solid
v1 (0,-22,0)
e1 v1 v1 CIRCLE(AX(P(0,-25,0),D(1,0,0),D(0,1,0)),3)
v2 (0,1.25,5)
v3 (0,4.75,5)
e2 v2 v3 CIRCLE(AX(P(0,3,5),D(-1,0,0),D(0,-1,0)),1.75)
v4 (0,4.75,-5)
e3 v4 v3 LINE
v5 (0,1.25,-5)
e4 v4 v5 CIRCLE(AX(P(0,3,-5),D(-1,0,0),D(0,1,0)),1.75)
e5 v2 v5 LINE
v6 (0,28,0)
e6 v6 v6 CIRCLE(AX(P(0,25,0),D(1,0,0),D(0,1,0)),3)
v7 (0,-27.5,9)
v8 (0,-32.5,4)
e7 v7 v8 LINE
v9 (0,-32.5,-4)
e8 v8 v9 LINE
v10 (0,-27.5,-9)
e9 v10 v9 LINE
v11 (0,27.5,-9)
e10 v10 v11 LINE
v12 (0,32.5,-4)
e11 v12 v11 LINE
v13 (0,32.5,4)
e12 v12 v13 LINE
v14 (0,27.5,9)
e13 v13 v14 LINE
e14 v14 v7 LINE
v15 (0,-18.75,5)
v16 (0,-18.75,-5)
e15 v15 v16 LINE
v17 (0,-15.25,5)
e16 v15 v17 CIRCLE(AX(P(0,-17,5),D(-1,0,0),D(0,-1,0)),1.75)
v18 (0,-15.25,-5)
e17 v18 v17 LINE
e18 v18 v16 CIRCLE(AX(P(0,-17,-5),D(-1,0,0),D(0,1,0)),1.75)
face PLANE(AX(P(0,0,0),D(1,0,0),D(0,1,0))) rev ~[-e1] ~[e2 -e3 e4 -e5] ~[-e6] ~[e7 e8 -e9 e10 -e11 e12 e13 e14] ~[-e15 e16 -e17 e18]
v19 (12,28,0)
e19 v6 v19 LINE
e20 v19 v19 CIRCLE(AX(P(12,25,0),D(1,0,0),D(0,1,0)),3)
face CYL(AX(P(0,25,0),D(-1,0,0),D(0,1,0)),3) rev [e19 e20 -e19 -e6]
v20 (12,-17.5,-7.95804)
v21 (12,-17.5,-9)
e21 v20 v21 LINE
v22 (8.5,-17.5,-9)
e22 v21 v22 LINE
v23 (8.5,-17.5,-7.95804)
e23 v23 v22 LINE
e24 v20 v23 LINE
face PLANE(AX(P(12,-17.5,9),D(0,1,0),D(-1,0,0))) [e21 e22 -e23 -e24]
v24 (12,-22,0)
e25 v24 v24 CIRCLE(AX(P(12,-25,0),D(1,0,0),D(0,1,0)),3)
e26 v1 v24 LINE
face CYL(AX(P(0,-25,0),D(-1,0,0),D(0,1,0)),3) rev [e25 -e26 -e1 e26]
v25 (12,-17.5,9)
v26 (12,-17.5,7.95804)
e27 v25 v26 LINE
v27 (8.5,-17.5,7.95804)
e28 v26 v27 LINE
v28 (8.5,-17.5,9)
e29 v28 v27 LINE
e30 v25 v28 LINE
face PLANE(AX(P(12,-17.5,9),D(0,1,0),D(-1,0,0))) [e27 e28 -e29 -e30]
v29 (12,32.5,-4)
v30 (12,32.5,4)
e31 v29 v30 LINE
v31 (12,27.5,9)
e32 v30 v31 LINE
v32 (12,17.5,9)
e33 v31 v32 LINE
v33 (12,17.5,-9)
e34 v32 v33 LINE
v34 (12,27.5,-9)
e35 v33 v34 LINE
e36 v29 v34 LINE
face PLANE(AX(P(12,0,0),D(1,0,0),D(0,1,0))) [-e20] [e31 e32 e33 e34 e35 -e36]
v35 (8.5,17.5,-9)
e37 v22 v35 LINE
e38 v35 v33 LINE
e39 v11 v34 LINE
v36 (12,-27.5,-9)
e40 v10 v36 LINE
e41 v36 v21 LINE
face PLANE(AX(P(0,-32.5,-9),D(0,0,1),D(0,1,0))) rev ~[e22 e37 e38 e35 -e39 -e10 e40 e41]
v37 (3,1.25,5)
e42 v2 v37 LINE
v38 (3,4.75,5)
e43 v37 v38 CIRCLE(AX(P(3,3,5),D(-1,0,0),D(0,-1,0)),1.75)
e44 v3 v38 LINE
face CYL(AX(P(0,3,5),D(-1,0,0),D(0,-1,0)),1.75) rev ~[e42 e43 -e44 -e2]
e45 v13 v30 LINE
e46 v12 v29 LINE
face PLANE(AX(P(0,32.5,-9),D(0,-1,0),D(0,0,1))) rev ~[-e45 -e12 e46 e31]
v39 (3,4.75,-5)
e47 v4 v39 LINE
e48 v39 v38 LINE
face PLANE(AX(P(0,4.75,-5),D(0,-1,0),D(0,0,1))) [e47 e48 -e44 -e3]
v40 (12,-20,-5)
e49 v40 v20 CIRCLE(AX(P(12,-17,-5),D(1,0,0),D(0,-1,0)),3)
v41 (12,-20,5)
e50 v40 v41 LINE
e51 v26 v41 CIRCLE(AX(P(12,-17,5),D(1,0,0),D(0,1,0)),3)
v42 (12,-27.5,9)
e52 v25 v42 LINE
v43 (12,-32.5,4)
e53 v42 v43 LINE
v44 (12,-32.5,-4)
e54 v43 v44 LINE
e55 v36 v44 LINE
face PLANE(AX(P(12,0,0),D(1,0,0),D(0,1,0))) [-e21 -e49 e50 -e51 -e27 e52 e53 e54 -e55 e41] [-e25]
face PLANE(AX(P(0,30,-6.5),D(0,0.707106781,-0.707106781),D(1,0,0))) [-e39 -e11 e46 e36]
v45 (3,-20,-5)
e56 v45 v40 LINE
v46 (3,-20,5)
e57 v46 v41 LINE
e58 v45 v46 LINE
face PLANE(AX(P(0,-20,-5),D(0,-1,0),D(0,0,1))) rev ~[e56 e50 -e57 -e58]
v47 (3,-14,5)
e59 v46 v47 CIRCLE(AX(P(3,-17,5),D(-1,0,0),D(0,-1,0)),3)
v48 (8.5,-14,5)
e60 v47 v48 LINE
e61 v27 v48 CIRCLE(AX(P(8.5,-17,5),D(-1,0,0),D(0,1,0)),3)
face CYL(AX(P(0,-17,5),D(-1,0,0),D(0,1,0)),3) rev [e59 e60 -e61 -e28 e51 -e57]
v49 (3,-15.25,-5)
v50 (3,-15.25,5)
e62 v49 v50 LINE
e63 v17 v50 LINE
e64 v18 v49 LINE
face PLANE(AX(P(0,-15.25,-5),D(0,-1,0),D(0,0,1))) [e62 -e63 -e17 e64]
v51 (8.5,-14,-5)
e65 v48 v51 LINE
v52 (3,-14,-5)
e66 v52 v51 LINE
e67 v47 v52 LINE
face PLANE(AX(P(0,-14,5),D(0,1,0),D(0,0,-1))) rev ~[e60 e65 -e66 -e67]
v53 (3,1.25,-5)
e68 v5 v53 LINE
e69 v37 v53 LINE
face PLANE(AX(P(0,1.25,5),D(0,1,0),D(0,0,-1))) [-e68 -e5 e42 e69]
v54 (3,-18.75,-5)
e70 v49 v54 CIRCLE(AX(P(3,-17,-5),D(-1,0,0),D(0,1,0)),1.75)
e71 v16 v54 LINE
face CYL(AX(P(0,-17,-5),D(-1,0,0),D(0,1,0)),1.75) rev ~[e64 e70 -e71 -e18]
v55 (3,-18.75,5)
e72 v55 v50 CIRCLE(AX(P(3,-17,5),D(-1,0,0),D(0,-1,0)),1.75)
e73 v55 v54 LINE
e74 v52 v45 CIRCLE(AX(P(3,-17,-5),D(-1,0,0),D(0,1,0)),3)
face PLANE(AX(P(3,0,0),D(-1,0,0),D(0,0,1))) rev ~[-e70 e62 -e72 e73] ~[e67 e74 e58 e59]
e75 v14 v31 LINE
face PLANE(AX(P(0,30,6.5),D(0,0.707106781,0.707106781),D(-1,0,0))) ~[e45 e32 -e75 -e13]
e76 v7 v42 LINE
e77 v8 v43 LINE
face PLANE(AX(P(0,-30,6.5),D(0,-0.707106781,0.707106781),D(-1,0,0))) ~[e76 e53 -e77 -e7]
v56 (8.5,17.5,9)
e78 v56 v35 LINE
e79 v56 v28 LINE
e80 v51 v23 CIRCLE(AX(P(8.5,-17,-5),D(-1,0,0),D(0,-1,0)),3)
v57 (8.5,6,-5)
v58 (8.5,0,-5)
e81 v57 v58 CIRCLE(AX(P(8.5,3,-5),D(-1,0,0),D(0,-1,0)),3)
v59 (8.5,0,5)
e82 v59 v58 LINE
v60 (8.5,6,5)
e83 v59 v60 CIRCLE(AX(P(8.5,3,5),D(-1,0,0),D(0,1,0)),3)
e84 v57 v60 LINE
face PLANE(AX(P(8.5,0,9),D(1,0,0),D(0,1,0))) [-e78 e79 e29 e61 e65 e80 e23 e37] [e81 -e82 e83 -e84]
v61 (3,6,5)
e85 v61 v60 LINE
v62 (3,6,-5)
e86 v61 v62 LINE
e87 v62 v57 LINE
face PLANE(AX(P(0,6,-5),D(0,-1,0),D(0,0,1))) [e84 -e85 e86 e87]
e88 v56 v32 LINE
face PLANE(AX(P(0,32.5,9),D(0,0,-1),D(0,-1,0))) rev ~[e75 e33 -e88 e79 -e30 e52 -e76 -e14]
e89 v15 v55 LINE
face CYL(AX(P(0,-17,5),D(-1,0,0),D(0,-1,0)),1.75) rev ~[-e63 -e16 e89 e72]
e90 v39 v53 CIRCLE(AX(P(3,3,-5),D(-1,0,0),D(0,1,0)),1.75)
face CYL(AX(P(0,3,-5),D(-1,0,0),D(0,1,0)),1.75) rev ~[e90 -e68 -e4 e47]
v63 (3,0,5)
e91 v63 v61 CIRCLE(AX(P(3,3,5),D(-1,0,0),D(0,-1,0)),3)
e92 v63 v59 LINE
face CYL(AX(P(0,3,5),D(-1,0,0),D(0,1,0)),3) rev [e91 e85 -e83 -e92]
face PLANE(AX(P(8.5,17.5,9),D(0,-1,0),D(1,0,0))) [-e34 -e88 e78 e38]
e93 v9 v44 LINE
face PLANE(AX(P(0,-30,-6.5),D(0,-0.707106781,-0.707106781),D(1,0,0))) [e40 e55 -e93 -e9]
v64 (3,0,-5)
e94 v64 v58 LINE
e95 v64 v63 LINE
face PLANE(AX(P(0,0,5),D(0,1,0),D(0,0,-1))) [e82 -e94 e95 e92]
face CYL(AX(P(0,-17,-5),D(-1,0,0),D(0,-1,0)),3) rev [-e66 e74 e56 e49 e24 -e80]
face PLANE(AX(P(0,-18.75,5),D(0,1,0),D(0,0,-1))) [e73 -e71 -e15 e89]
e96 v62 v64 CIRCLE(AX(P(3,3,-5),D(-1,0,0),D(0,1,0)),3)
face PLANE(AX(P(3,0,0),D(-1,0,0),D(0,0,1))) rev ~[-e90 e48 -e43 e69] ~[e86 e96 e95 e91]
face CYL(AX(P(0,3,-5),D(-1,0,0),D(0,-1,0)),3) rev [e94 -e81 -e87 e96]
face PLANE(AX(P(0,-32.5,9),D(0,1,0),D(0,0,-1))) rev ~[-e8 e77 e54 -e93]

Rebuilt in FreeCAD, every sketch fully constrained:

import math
import FreeCAD as App
import Part
import Sketcher


def edges_at(feature, points):
    """Names of the edges that pass closest to the given points."""
    edges = feature.Shape.Edges
    near = lambda p: min(range(len(edges)), key=lambda i: edges[i].distToShape(Part.Vertex(*p))[0])
    return sorted({f"Edge{near(p) + 1}" for p in points})

doc = App.newDocument("Part")
body = doc.addObject("PartDesign::Body", "Body")

# Sketch on YZ plane
sketch1 = doc.addObject("Sketcher::SketchObject", "Sketch")
body.addObject(sketch1)
sketch1.AttachmentSupport = (doc.YZ_Plane, [""])
sketch1.MapMode = "FlatFace"
sketch1.addGeometry(Part.LineSegment(App.Vector(32.5, -9, 0), App.Vector(32.5, 9, 0)), False)
sketch1.addGeometry(Part.LineSegment(App.Vector(32.5, 9, 0), App.Vector(-32.5, 9, 0)), False)
sketch1.addGeometry(Part.LineSegment(App.Vector(-32.5, 9, 0), App.Vector(-32.5, -9, 0)), False)
sketch1.addGeometry(Part.LineSegment(App.Vector(-32.5, -9, 0), App.Vector(32.5, -9, 0)), False)
sketch1.addGeometry(Part.Circle(App.Vector(-25, 0, 0), App.Vector(0, 0, 1), 3), False)
sketch1.addGeometry(Part.ArcOfCircle(Part.Circle(App.Vector(-17, -5, 0), App.Vector(0, 0, 1), 3), math.radians(180), math.radians(360)), False)
sketch1.addGeometry(Part.LineSegment(App.Vector(-20, -5, 0), App.Vector(-20, 5, 0)), False)
sketch1.addGeometry(Part.ArcOfCircle(Part.Circle(App.Vector(-17, 5, 0), App.Vector(0, 0, 1), 3), math.radians(0), math.radians(180)), False)
sketch1.addGeometry(Part.LineSegment(App.Vector(-14, 5, 0), App.Vector(-14, -5, 0)), False)
sketch1.addGeometry(Part.LineSegment(App.Vector(6, 5, 0), App.Vector(6, -5, 0)), False)
sketch1.addGeometry(Part.ArcOfCircle(Part.Circle(App.Vector(3, -5, 0), App.Vector(0, 0, 1), 3), math.radians(180), math.radians(360)), False)
sketch1.addGeometry(Part.LineSegment(App.Vector(0, -5, 0), App.Vector(0, 5, 0)), False)
sketch1.addGeometry(Part.ArcOfCircle(Part.Circle(App.Vector(3, 5, 0), App.Vector(0, 0, 1), 3), math.radians(0), math.radians(180)), False)
sketch1.addGeometry(Part.Circle(App.Vector(25, 0, 0), App.Vector(0, 0, 1), 3), False)
sketch1.addConstraint(Sketcher.Constraint("Coincident", 0, 2, 1, 1))
sketch1.addConstraint(Sketcher.Constraint("Coincident", 1, 2, 2, 1))
sketch1.addConstraint(Sketcher.Constraint("Coincident", 2, 2, 3, 1))
sketch1.addConstraint(Sketcher.Constraint("Coincident", 3, 2, 0, 1))
sketch1.addConstraint(Sketcher.Constraint("Tangent", 5, 1, 6, 1))
sketch1.addConstraint(Sketcher.Constraint("Tangent", 6, 2, 7, 2))
sketch1.addConstraint(Sketcher.Constraint("Tangent", 7, 1, 8, 1))
sketch1.addConstraint(Sketcher.Constraint("Tangent", 8, 2, 5, 2))
sketch1.addConstraint(Sketcher.Constraint("Tangent", 9, 2, 10, 2))
sketch1.addConstraint(Sketcher.Constraint("Tangent", 10, 1, 11, 1))
sketch1.addConstraint(Sketcher.Constraint("Tangent", 11, 2, 12, 2))
sketch1.addConstraint(Sketcher.Constraint("Tangent", 12, 1, 9, 1))
sketch1.addConstraint(Sketcher.Constraint("Vertical", 0))
sketch1.addConstraint(Sketcher.Constraint("Horizontal", 1))
sketch1.addConstraint(Sketcher.Constraint("Vertical", 2))
sketch1.addConstraint(Sketcher.Constraint("Horizontal", 3))
sketch1.addConstraint(Sketcher.Constraint("Vertical", 6))
sketch1.addConstraint(Sketcher.Constraint("Vertical", 8))
sketch1.addConstraint(Sketcher.Constraint("Vertical", 9))
sketch1.addConstraint(Sketcher.Constraint("Vertical", 11))
sketch1.addConstraint(Sketcher.Constraint("Equal", 4, 5))
sketch1.addConstraint(Sketcher.Constraint("Equal", 7, 10))
sketch1.addConstraint(Sketcher.Constraint("Equal", 12, 13))
sketch1.addConstraint(Sketcher.Constraint("Symmetric", 4, 3, 13, 3, -1, 1))
sketch1.addConstraint(Sketcher.Constraint("Symmetric", 0, 2, 2, 2, -1, 1))
sketch1.addConstraint(Sketcher.Constraint("Symmetric", 10, 1, 11, 2, -1, 1))
sketch1.addConstraint(Sketcher.Constraint("PointOnObject", 4, 3, -1))
sketch1.addConstraint(Sketcher.Constraint("Horizontal", 5, 3, 10, 3))
sketch1.addConstraint(Sketcher.Constraint("Horizontal", 7, 3, 12, 3))
sketch1.addConstraint(Sketcher.Constraint("Diameter", 4, 6.0))
sketch1.addConstraint(Sketcher.Constraint("DistanceX", 1, 2, 1, 1, 65.0))
sketch1.addConstraint(Sketcher.Constraint("DistanceY", 0, 1, 0, 2, 18.0))
sketch1.addConstraint(Sketcher.Constraint("DistanceY", 6, 1, 6, 2, 10.0))
sketch1.addConstraint(Sketcher.Constraint("DistanceX", 4, 3, -1, 1, 25.0))
sketch1.addConstraint(Sketcher.Constraint("DistanceX", 5, 1, -1, 1, 20.0))
pad1 = doc.addObject("PartDesign::Pad", "Pad")
body.addObject(pad1)
pad1.Profile = sketch1
pad1.Length = 12

# Sketch on YZ plane
sketch2 = doc.addObject("Sketcher::SketchObject", "Sketch001")
body.addObject(sketch2)
sketch2.AttachmentSupport = (doc.YZ_Plane, [""])
sketch2.MapMode = "FlatFace"
sketch2.addGeometry(Part.LineSegment(App.Vector(6, 5, 0), App.Vector(6, -5, 0)), False)
sketch2.addGeometry(Part.ArcOfCircle(Part.Circle(App.Vector(3, -5, 0), App.Vector(0, 0, 1), 3), math.radians(180), math.radians(360)), False)
sketch2.addGeometry(Part.LineSegment(App.Vector(0, -5, 0), App.Vector(0, 5, 0)), False)
sketch2.addGeometry(Part.ArcOfCircle(Part.Circle(App.Vector(3, 5, 0), App.Vector(0, 0, 1), 3), math.radians(0), math.radians(180)), False)
sketch2.addGeometry(Part.ArcOfCircle(Part.Circle(App.Vector(3, 5, 0), App.Vector(0, 0, 1), 1.8), math.radians(0), math.radians(180)), False)
sketch2.addGeometry(Part.LineSegment(App.Vector(1.2, 5, 0), App.Vector(1.2, -5, 0)), False)
sketch2.addGeometry(Part.ArcOfCircle(Part.Circle(App.Vector(3, -5, 0), App.Vector(0, 0, 1), 1.8), math.radians(180), math.radians(360)), False)
sketch2.addGeometry(Part.LineSegment(App.Vector(4.8, -5, 0), App.Vector(4.8, 5, 0)), False)
sketch2.addGeometry(Part.ArcOfCircle(Part.Circle(App.Vector(-17, 5, 0), App.Vector(0, 0, 1), 3), math.radians(0), math.radians(180)), False)
sketch2.addGeometry(Part.LineSegment(App.Vector(-14, 5, 0), App.Vector(-14, -5, 0)), False)
sketch2.addGeometry(Part.ArcOfCircle(Part.Circle(App.Vector(-17, -5, 0), App.Vector(0, 0, 1), 3), math.radians(180), math.radians(360)), False)
sketch2.addGeometry(Part.LineSegment(App.Vector(-20, -5, 0), App.Vector(-20, 5, 0)), False)
sketch2.addGeometry(Part.ArcOfCircle(Part.Circle(App.Vector(-17, 5, 0), App.Vector(0, 0, 1), 1.8), math.radians(0), math.radians(180)), False)
sketch2.addGeometry(Part.LineSegment(App.Vector(-18.8, 5, 0), App.Vector(-18.8, -5, 0)), False)
sketch2.addGeometry(Part.ArcOfCircle(Part.Circle(App.Vector(-17, -5, 0), App.Vector(0, 0, 1), 1.8), math.radians(180), math.radians(360)), False)
sketch2.addGeometry(Part.LineSegment(App.Vector(-15.2, -5, 0), App.Vector(-15.2, 5, 0)), False)
sketch2.addConstraint(Sketcher.Constraint("Tangent", 0, 2, 1, 2))
sketch2.addConstraint(Sketcher.Constraint("Tangent", 1, 1, 2, 1))
sketch2.addConstraint(Sketcher.Constraint("Tangent", 2, 2, 3, 2))
sketch2.addConstraint(Sketcher.Constraint("Tangent", 3, 1, 0, 1))
sketch2.addConstraint(Sketcher.Constraint("Tangent", 4, 2, 5, 1))
sketch2.addConstraint(Sketcher.Constraint("Tangent", 5, 2, 6, 1))
sketch2.addConstraint(Sketcher.Constraint("Tangent", 6, 2, 7, 1))
sketch2.addConstraint(Sketcher.Constraint("Tangent", 7, 2, 4, 1))
sketch2.addConstraint(Sketcher.Constraint("Tangent", 8, 1, 9, 1))
sketch2.addConstraint(Sketcher.Constraint("Tangent", 9, 2, 10, 2))
sketch2.addConstraint(Sketcher.Constraint("Tangent", 10, 1, 11, 1))
sketch2.addConstraint(Sketcher.Constraint("Tangent", 11, 2, 8, 2))
sketch2.addConstraint(Sketcher.Constraint("Tangent", 12, 2, 13, 1))
sketch2.addConstraint(Sketcher.Constraint("Tangent", 13, 2, 14, 1))
sketch2.addConstraint(Sketcher.Constraint("Tangent", 14, 2, 15, 1))
sketch2.addConstraint(Sketcher.Constraint("Tangent", 15, 2, 12, 1))
sketch2.addConstraint(Sketcher.Constraint("Vertical", 0))
sketch2.addConstraint(Sketcher.Constraint("Vertical", 2))
sketch2.addConstraint(Sketcher.Constraint("Vertical", 5))
sketch2.addConstraint(Sketcher.Constraint("Vertical", 7))
sketch2.addConstraint(Sketcher.Constraint("Vertical", 9))
sketch2.addConstraint(Sketcher.Constraint("Vertical", 11))
sketch2.addConstraint(Sketcher.Constraint("Vertical", 13))
sketch2.addConstraint(Sketcher.Constraint("Vertical", 15))
sketch2.addConstraint(Sketcher.Constraint("Coincident", 4, 3, 3, 3))
sketch2.addConstraint(Sketcher.Constraint("Coincident", 12, 3, 8, 3))
sketch2.addConstraint(Sketcher.Constraint("Equal", 3, 8))
sketch2.addConstraint(Sketcher.Constraint("Equal", 6, 12))
sketch2.addConstraint(Sketcher.Constraint("Symmetric", 1, 1, 2, 2, -1, 1))
sketch2.addConstraint(Sketcher.Constraint("Horizontal", 4, 3, 8, 3))
sketch2.addConstraint(Sketcher.Constraint("Horizontal", 6, 3, 10, 3))
sketch2.addConstraint(Sketcher.Constraint("Horizontal", 6, 3, 14, 3))
sketch2.addConstraint(Sketcher.Constraint("Horizontal", 14, 3, 0, 2))
sketch2.addConstraint(Sketcher.Constraint("Radius", 4, 1.75))
sketch2.addConstraint(Sketcher.Constraint("Radius", 1, 3.0))
sketch2.addConstraint(Sketcher.Constraint("DistanceY", 0, 2, 0, 1, 10.0))
sketch2.addConstraint(Sketcher.Constraint("DistanceX", 8, 3, -1, 1, 17.0))
pad2 = doc.addObject("PartDesign::Pad", "Pad001")
body.addObject(pad2)
pad2.Profile = sketch2
pad2.Length = 3
doc.recompute()

chamfer = doc.addObject("PartDesign::Chamfer", "Chamfer")
body.addObject(chamfer)
chamfer.Base = (pad2, edges_at(pad2, [
    (6, -32.5, 9),
    (6, -32.5, -9),
    (6, 32.5, -9),
    (6, 32.5, 9),
]))
chamfer.Size = 5

# Sketch on XY plane
sketch3 = doc.addObject("Sketcher::SketchObject", "Sketch002")
body.addObject(sketch3)
sketch3.AttachmentSupport = (doc.XY_Plane, [""])
sketch3.MapMode = "FlatFace"
sketch3.AttachmentOffset = App.Placement(App.Vector(0, 0, 9), App.Rotation())
sketch3.addGeometry(Part.LineSegment(App.Vector(12, 17.5, 0), App.Vector(8.5, 17.5, 0)), False)
sketch3.addGeometry(Part.LineSegment(App.Vector(8.5, 17.5, 0), App.Vector(8.5, -17.5, 0)), False)
sketch3.addGeometry(Part.LineSegment(App.Vector(8.5, -17.5, 0), App.Vector(12, -17.5, 0)), False)
sketch3.addGeometry(Part.LineSegment(App.Vector(12, -17.5, 0), App.Vector(12, 17.5, 0)), False)
sketch3.addConstraint(Sketcher.Constraint("Coincident", 0, 2, 1, 1))
sketch3.addConstraint(Sketcher.Constraint("Coincident", 1, 2, 2, 1))
sketch3.addConstraint(Sketcher.Constraint("Coincident", 2, 2, 3, 1))
sketch3.addConstraint(Sketcher.Constraint("Coincident", 3, 2, 0, 1))
sketch3.addConstraint(Sketcher.Constraint("Horizontal", 0))
sketch3.addConstraint(Sketcher.Constraint("Vertical", 1))
sketch3.addConstraint(Sketcher.Constraint("Horizontal", 2))
sketch3.addConstraint(Sketcher.Constraint("Vertical", 3))
sketch3.addConstraint(Sketcher.Constraint("DistanceY", 1, 2, 1, 1, 35.0))
sketch3.addConstraint(Sketcher.Constraint("DistanceX", 0, 2, 0, 1, 3.5))
sketch3.addConstraint(Sketcher.Constraint("DistanceX", -1, 1, 2, 2, 12.0))
sketch3.addConstraint(Sketcher.Constraint("DistanceY", -1, 1, 0, 2, 17.5))
pocket1 = doc.addObject("PartDesign::Pocket", "Pocket")
body.addObject(pocket1)
pocket1.Profile = sketch3
pocket1.Type = "ThroughAll"

doc.recompute()
